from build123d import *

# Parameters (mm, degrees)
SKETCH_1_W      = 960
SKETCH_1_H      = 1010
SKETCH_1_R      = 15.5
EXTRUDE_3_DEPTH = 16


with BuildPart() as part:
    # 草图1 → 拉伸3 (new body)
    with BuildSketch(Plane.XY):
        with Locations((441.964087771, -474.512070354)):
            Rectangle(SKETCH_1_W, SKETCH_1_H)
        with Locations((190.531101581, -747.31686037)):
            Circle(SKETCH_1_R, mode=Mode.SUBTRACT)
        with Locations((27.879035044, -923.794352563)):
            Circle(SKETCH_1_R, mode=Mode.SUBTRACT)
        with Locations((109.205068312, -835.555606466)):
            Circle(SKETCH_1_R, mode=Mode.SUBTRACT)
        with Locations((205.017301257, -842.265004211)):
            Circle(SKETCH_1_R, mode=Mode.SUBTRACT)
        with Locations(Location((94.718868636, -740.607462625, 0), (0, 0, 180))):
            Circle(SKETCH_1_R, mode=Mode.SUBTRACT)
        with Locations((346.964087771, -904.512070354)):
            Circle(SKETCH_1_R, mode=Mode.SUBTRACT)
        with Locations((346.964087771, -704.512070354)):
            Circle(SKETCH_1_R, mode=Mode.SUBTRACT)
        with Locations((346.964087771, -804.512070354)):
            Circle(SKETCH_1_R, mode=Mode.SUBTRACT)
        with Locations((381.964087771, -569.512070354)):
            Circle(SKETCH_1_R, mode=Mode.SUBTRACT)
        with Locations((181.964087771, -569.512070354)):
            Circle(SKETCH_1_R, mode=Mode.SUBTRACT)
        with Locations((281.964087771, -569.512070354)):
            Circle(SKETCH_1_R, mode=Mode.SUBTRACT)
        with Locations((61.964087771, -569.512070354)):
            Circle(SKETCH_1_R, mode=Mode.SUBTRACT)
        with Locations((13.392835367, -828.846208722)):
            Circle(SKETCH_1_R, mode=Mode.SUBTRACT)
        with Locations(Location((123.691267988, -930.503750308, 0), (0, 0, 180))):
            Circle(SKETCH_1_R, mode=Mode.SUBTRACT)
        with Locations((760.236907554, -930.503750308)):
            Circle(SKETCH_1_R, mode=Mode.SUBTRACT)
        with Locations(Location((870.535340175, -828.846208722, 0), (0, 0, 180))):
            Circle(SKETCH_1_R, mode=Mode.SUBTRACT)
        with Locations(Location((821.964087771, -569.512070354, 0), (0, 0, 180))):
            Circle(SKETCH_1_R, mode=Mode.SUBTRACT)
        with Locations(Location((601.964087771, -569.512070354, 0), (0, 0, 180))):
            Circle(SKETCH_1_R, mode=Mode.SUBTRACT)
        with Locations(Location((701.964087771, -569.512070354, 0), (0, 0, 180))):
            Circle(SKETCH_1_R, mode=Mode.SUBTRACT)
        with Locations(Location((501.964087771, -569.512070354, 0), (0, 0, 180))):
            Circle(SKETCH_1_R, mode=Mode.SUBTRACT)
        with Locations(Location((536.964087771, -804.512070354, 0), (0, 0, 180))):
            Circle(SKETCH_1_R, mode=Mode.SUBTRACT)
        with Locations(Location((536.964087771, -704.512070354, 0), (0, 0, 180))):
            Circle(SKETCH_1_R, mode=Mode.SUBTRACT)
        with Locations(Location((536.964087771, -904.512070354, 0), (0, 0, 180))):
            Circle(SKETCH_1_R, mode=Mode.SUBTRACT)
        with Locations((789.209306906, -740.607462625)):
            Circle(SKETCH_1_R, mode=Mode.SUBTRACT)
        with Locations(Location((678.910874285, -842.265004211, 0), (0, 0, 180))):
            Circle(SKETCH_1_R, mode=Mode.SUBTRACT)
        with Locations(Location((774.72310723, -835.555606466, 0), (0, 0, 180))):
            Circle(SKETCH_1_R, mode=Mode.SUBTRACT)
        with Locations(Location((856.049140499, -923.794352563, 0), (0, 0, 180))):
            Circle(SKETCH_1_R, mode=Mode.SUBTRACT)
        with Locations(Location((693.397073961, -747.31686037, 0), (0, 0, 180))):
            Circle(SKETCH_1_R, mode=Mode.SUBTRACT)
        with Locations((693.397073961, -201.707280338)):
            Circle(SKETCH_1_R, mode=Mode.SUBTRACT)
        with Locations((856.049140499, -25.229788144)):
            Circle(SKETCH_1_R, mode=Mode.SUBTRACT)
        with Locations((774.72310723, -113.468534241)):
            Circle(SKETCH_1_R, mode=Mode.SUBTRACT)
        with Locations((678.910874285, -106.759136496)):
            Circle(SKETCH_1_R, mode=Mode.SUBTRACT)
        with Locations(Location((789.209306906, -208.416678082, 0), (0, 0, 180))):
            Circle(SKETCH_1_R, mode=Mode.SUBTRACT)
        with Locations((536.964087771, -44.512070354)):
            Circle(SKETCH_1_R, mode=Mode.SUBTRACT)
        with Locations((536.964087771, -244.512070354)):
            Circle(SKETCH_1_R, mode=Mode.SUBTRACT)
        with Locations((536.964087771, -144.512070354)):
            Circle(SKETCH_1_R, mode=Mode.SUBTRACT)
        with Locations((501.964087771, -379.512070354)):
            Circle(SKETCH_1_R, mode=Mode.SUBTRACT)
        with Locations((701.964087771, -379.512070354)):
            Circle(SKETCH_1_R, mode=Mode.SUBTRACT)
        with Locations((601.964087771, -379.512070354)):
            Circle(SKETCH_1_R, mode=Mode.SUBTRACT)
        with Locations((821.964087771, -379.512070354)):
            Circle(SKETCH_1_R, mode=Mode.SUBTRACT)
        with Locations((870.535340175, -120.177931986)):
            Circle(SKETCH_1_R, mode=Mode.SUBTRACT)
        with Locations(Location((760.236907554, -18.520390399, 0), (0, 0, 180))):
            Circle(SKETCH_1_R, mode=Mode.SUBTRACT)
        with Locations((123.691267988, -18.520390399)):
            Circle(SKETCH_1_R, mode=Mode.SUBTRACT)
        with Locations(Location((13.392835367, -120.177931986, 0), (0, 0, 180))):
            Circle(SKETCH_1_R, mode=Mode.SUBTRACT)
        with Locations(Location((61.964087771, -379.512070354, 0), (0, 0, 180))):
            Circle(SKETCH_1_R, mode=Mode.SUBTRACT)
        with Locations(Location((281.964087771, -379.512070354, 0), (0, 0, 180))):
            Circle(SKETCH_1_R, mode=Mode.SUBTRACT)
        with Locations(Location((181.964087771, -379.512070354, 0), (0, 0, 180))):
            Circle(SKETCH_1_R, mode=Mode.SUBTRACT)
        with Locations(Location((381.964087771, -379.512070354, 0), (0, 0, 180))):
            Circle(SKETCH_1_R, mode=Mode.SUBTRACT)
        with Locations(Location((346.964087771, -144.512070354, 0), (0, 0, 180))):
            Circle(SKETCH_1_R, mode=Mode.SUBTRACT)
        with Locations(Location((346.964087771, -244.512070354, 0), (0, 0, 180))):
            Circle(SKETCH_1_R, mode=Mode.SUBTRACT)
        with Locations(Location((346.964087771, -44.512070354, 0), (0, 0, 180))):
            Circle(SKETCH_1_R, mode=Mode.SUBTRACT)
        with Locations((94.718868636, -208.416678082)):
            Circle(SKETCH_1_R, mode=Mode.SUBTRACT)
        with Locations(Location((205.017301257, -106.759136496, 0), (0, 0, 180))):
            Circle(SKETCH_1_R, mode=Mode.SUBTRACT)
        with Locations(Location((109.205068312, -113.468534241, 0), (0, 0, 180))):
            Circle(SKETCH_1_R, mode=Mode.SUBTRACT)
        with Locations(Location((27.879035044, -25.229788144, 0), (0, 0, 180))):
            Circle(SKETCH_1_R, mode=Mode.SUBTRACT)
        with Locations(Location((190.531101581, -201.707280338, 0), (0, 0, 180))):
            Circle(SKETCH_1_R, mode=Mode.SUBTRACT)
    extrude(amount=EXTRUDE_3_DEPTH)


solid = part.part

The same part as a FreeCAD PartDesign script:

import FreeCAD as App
import Part
import Sketcher
Q = App.Units.Quantity


def add_polygon(sketch, points):
    """Adds a closed chain of lines whose ends are joined by coincident constraints."""
    first, n = sketch.GeometryCount, len(points)
    for a, b in zip(points, points[1:] + points[:1]):
        sketch.addGeometry(Part.LineSegment(App.Vector(*a, 0), App.Vector(*b, 0)), False)
    for i in range(n):
        sketch.addConstraint(Sketcher.Constraint("Coincident", first + i, 2, first + (i + 1) % n, 1))

doc = App.newDocument("Part")
body = doc.addObject("PartDesign::Body", "Body")

sketch1 = doc.addObject("Sketcher::SketchObject", "Sketch")
body.addObject(sketch1)
sketch1.AttachmentSupport = (doc.XY_Plane, [""])
sketch1.MapMode = "FlatFace"
add_polygon(sketch1, [(-38, 30), (-38, -980), (922, -980), (922, 30)])
sketch1.addGeometry(Part.Circle(App.Vector(28, -924, 0), App.Vector(0, 0, 1), 16), False)
sketch1.addGeometry(Part.Circle(App.Vector(13, -829, 0), App.Vector(0, 0, 1), 16), False)
sketch1.addGeometry(Part.Circle(App.Vector(124, -931, 0), App.Vector(0, 0, 1), 16), False)
sketch1.addGeometry(Part.Circle(App.Vector(109, -836, 0), App.Vector(0, 0, 1), 16), False)
sketch1.addGeometry(Part.Circle(App.Vector(205, -842, 0), App.Vector(0, 0, 1), 16), False)
sketch1.addGeometry(Part.Circle(App.Vector(95, -741, 0), App.Vector(0, 0, 1), 16), False)
sketch1.addGeometry(Part.Circle(App.Vector(191, -747, 0), App.Vector(0, 0, 1), 16), False)
sketch1.addGeometry(Part.Circle(App.Vector(347, -905, 0), App.Vector(0, 0, 1), 16), False)
sketch1.addGeometry(Part.Circle(App.Vector(347, -805, 0), App.Vector(0, 0, 1), 16), False)
sketch1.addGeometry(Part.Circle(App.Vector(62, -570, 0), App.Vector(0, 0, 1), 16), False)
sketch1.addGeometry(Part.Circle(App.Vector(182, -570, 0), App.Vector(0, 0, 1), 16), False)
sketch1.addGeometry(Part.Circle(App.Vector(347, -705, 0), App.Vector(0, 0, 1), 16), False)
sketch1.addGeometry(Part.Circle(App.Vector(282, -570, 0), App.Vector(0, 0, 1), 16), False)
sketch1.addGeometry(Part.Circle(App.Vector(382, -570, 0), App.Vector(0, 0, 1), 16), False)
sketch1.addGeometry(Part.Circle(App.Vector(537, -905, 0), App.Vector(0, 0, 1), 16), False)
sketch1.addGeometry(Part.Circle(App.Vector(537, -805, 0), App.Vector(0, 0, 1), 16), False)
sketch1.addGeometry(Part.Circle(App.Vector(760, -931, 0), App.Vector(0, 0, 1), 16), False)
sketch1.addGeometry(Part.Circle(App.Vector(679, -842, 0), App.Vector(0, 0, 1), 16), False)
sketch1.addGeometry(Part.Circle(App.Vector(775, -836, 0), App.Vector(0, 0, 1), 16), False)
sketch1.addGeometry(Part.Circle(App.Vector(856, -924, 0), App.Vector(0, 0, 1), 16), False)
sketch1.addGeometry(Part.Circle(App.Vector(871, -829, 0), App.Vector(0, 0, 1), 16), False)
sketch1.addGeometry(Part.Circle(App.Vector(693, -747, 0), App.Vector(0, 0, 1), 16), False)
sketch1.addGeometry(Part.Circle(App.Vector(789, -741, 0), App.Vector(0, 0, 1), 16), False)
sketch1.addGeometry(Part.Circle(App.Vector(537, -705, 0), App.Vector(0, 0, 1), 16), False)
sketch1.addGeometry(Part.Circle(App.Vector(502, -570, 0), App.Vector(0, 0, 1), 16), False)
sketch1.addGeometry(Part.Circle(App.Vector(602, -570, 0), App.Vector(0, 0, 1), 16), False)
sketch1.addGeometry(Part.Circle(App.Vector(702, -570, 0), App.Vector(0, 0, 1), 16), False)
sketch1.addGeometry(Part.Circle(App.Vector(822, -570, 0), App.Vector(0, 0, 1), 16), False)
sketch1.addGeometry(Part.Circle(App.Vector(62, -380, 0), App.Vector(0, 0, 1), 16), False)
sketch1.addGeometry(Part.Circle(App.Vector(182, -380, 0), App.Vector(0, 0, 1), 16), False)
sketch1.addGeometry(Part.Circle(App.Vector(282, -380, 0), App.Vector(0, 0, 1), 16), False)
sketch1.addGeometry(Part.Circle(App.Vector(382, -380, 0), App.Vector(0, 0, 1), 16), False)
sketch1.addGeometry(Part.Circle(App.Vector(347, -245, 0), App.Vector(0, 0, 1), 16), False)
sketch1.addGeometry(Part.Circle(App.Vector(95, -208, 0), App.Vector(0, 0, 1), 16), False)
sketch1.addGeometry(Part.Circle(App.Vector(191, -202, 0), App.Vector(0, 0, 1), 16), False)
sketch1.addGeometry(Part.Circle(App.Vector(13, -120, 0), App.Vector(0, 0, 1), 16), False)
sketch1.addGeometry(Part.Circle(App.Vector(28, -25, 0), App.Vector(0, 0, 1), 16), False)
sketch1.addGeometry(Part.Circle(App.Vector(109, -113, 0), App.Vector(0, 0, 1), 16), False)
sketch1.addGeometry(Part.Circle(App.Vector(205, -107, 0), App.Vector(0, 0, 1), 16), False)
sketch1.addGeometry(Part.Circle(App.Vector(124, -19, 0), App.Vector(0, 0, 1), 16), False)
sketch1.addGeometry(Part.Circle(App.Vector(347, -145, 0), App.Vector(0, 0, 1), 16), False)
sketch1.addGeometry(Part.Circle(App.Vector(347, -45, 0), App.Vector(0, 0, 1), 16), False)
sketch1.addGeometry(Part.Circle(App.Vector(502, -380, 0), App.Vector(0, 0, 1), 16), False)
sketch1.addGeometry(Part.Circle(App.Vector(602, -380, 0), App.Vector(0, 0, 1), 16), False)
sketch1.addGeometry(Part.Circle(App.Vector(537, -245, 0), App.Vector(0, 0, 1), 16), False)
sketch1.addGeometry(Part.Circle(App.Vector(702, -380, 0), App.Vector(0, 0, 1), 16), False)
sketch1.addGeometry(Part.Circle(App.Vector(822, -380, 0), App.Vector(0, 0, 1), 16), False)
sketch1.addGeometry(Part.Circle(App.Vector(537, -145, 0), App.Vector(0, 0, 1), 16), False)
sketch1.addGeometry(Part.Circle(App.Vector(537, -45, 0), App.Vector(0, 0, 1), 16), False)
sketch1.addGeometry(Part.Circle(App.Vector(693, -202, 0), App.Vector(0, 0, 1), 16), False)
sketch1.addGeometry(Part.Circle(App.Vector(789, -208, 0), App.Vector(0, 0, 1), 16), False)
sketch1.addGeometry(Part.Circle(App.Vector(679, -107, 0), App.Vector(0, 0, 1), 16), False)
sketch1.addGeometry(Part.Circle(App.Vector(775, -113, 0), App.Vector(0, 0, 1), 16), False)
sketch1.addGeometry(Part.Circle(App.Vector(760, -19, 0), App.Vector(0, 0, 1), 16), False)
sketch1.addGeometry(Part.Circle(App.Vector(871, -120, 0), App.Vector(0, 0, 1), 16), False)
sketch1.addGeometry(Part.Circle(App.Vector(856, -25, 0), App.Vector(0, 0, 1), 16), False)
sketch1.addConstraint([
    Sketcher.Constraint("Vertical", 0),
    Sketcher.Constraint("Horizontal", 1),
    Sketcher.Constraint("Vertical", 2),
    Sketcher.Constraint("Horizontal", 3),
    Sketcher.Constraint("Equal", 4, 5),
    Sketcher.Constraint("Equal", 5, 6),
    Sketcher.Constraint("Equal", 6, 7),
    Sketcher.Constraint("Equal", 7, 8),
    Sketcher.Constraint("Equal", 8, 9),
    Sketcher.Constraint("Equal", 9, 10),
    Sketcher.Constraint("Equal", 10, 11),
    Sketcher.Constraint("Equal", 11, 12),
    Sketcher.Constraint("Equal", 12, 13),
    Sketcher.Constraint("Equal", 13, 14),
    Sketcher.Constraint("Equal", 14, 15),
    Sketcher.Constraint("Equal", 15, 16),
    Sketcher.Constraint("Equal", 16, 17),
    Sketcher.Constraint("Equal", 17, 18),
    Sketcher.Constraint("Equal", 18, 19),
    Sketcher.Constraint("Equal", 19, 20),
    Sketcher.Constraint("Equal", 20, 21),
    Sketcher.Constraint("Equal", 21, 22),
    Sketcher.Constraint("Equal", 22, 23),
    Sketcher.Constraint("Equal", 23, 24),
    Sketcher.Constraint("Equal", 24, 25),
    Sketcher.Constraint("Equal", 25, 26),
    Sketcher.Constraint("Equal", 26, 27),
    Sketcher.Constraint("Equal", 27, 28),
    Sketcher.Constraint("Equal", 28, 29),
    Sketcher.Constraint("Equal", 29, 30),
    Sketcher.Constraint("Equal", 30, 31),
    Sketcher.Constraint("Equal", 31, 32),
    Sketcher.Constraint("Equal", 32, 33),
    Sketcher.Constraint("Equal", 33, 34),
    Sketcher.Constraint("Equal", 34, 35),
    Sketcher.Constraint("Equal", 35, 36),
    Sketcher.Constraint("Equal", 36, 37),
    Sketcher.Constraint("Equal", 37, 38),
    Sketcher.Constraint("Equal", 38, 39),
    Sketcher.Constraint("Equal", 39, 40),
    Sketcher.Constraint("Equal", 40, 41),
    Sketcher.Constraint("Equal", 41, 42),
    Sketcher.Constraint("Equal", 42, 43),
    Sketcher.Constraint("Equal", 43, 44),
    Sketcher.Constraint("Equal", 44, 45),
    Sketcher.Constraint("Equal", 45, 46),
    Sketcher.Constraint("Equal", 46, 47),
    Sketcher.Constraint("Equal", 47, 48),
    Sketcher.Constraint("Equal", 48, 49),
    Sketcher.Constraint("Equal", 49, 50),
    Sketcher.Constraint("Equal", 50, 51),
    Sketcher.Constraint("Equal", 51, 52),
    Sketcher.Constraint("Equal", 52, 53),
    Sketcher.Constraint("Equal", 53, 54),
    Sketcher.Constraint("Equal", 54, 55),
    Sketcher.Constraint("Equal", 55, 56),
    Sketcher.Constraint("Equal", 56, 57),
    Sketcher.Constraint("Equal", 57, 58),
    Sketcher.Constraint("Equal", 58, 59),
    Sketcher.Constraint("Horizontal", 13, 3, 14, 3),
    Sketcher.Constraint("Horizontal", 14, 3, 16, 3),
    Sketcher.Constraint("Horizontal", 16, 3, 17, 3),
    Sketcher.Constraint("Horizontal", 11, 3, 18, 3),
    Sketcher.Constraint("Horizontal", 12, 3, 19, 3),
    Sketcher.Constraint("Horizontal", 6, 3, 20, 3),
    Sketcher.Constraint("Horizontal", 8, 3, 21, 3),
    Sketcher.Constraint("Horizontal", 7, 3, 22, 3),
    Sketcher.Constraint("Horizontal", 4, 3, 23, 3),
    Sketcher.Constraint("Horizontal", 5, 3, 24, 3),
    Sketcher.Constraint("Horizontal", 10, 3, 25, 3),
    Sketcher.Constraint("Horizontal", 9, 3, 26, 3),
    Sketcher.Constraint("Horizontal", 15, 3, 27, 3),
    Sketcher.Constraint("Horizontal", 17, 3, 28, 3),
    Sketcher.Constraint("Horizontal", 28, 3, 29, 3),
    Sketcher.Constraint("Horizontal", 29, 3, 30, 3),
    Sketcher.Constraint("Horizontal", 30, 3, 31, 3),
    Sketcher.Constraint("Horizontal", 32, 3, 33, 3),
    Sketcher.Constraint("Horizontal", 33, 3, 34, 3),
    Sketcher.Constraint("Horizontal", 34, 3, 35, 3),
    Sketcher.Constraint("Horizontal", 35, 3, 46, 3),
    Sketcher.Constraint("Horizontal", 46, 3, 47, 3),
    Sketcher.Constraint("Horizontal", 36, 3, 48, 3),
    Sketcher.Constraint("Horizontal", 47, 3, 49, 3),
    Sketcher.Constraint("Horizontal", 49, 3, 50, 3),
    Sketcher.Constraint("Horizontal", 44, 3, 51, 3),
    Sketcher.Constraint("Horizontal", 45, 3, 52, 3),
    Sketcher.Constraint("Horizontal", 38, 3, 53, 3),
    Sketcher.Constraint("Horizontal", 37, 3, 54, 3),
    Sketcher.Constraint("Horizontal", 42, 3, 55, 3),
    Sketcher.Constraint("Horizontal", 41, 3, 56, 3),
    Sketcher.Constraint("Horizontal", 43, 3, 57, 3),
    Sketcher.Constraint("Horizontal", 39, 3, 58, 3),
    Sketcher.Constraint("Horizontal", 40, 3, 59, 3),
    Sketcher.Constraint("Vertical", 11, 3, 12, 3),
    Sketcher.Constraint("Vertical", 12, 3, 15, 3),
    Sketcher.Constraint("Vertical", 18, 3, 19, 3),
    Sketcher.Constraint("Vertical", 19, 3, 27, 3),
    Sketcher.Constraint("Vertical", 13, 3, 32, 3),
    Sketcher.Constraint("Vertical", 14, 3, 33, 3),
    Sketcher.Constraint("Vertical", 16, 3, 34, 3),
    Sketcher.Constraint("Vertical", 17, 3, 35, 3),
    Sketcher.Constraint("Vertical", 15, 3, 36, 3),
    Sketcher.Constraint("Vertical", 9, 3, 37, 3),
    Sketcher.Constraint("Vertical", 10, 3, 38, 3),
    Sketcher.Constraint("Vertical", 5, 3, 39, 3),
    Sketcher.Constraint("Vertical", 4, 3, 40, 3),
    Sketcher.Constraint("Vertical", 7, 3, 41, 3),
    Sketcher.Constraint("Vertical", 8, 3, 42, 3),
    Sketcher.Constraint("Vertical", 6, 3, 43, 3),
    Sketcher.Constraint("Vertical", 36, 3, 44, 3),
    Sketcher.Constraint("Vertical", 44, 3, 45, 3),
    Sketcher.Constraint("Vertical", 28, 3, 46, 3),
    Sketcher.Constraint("Vertical", 29, 3, 47, 3),
    Sketcher.Constraint("Vertical", 27, 3, 48, 3),
    Sketcher.Constraint("Vertical", 30, 3, 49, 3),
    Sketcher.Constraint("Vertical", 31, 3, 50, 3),
    Sketcher.Constraint("Vertical", 48, 3, 51, 3),
    Sketcher.Constraint("Vertical", 51, 3, 52, 3),
    Sketcher.Constraint("Vertical", 25, 3, 53, 3),
    Sketcher.Constraint("Vertical", 26, 3, 54, 3),
    Sketcher.Constraint("Vertical", 21, 3, 55, 3),
    Sketcher.Constraint("Vertical", 22, 3, 56, 3),
    Sketcher.Constraint("Vertical", 20, 3, 57, 3),
    Sketcher.Constraint("Vertical", 24, 3, 58, 3),
    Sketcher.Constraint("Vertical", 23, 3, 59, 3),
    Sketcher.Constraint("Diameter", 4, Q("31 mm")),
    Sketcher.Constraint("DistanceX", 1, 1, 1, 2, Q("960 mm")),
    Sketcher.Constraint("DistanceY", 0, 2, 0, 1, Q("1010 mm")),
    Sketcher.Constraint("DistanceY", 11, 3, 12, 3, Q("100 mm")),
    Sketcher.Constraint("DistanceX", 13, 3, 14, 3, Q("120 mm")),
    Sketcher.Constraint("DistanceY", 12, 3, 15, 3, Q("100 mm")),
    Sketcher.Constraint("DistanceX", 14, 3, 15, 3, Q("165 mm")),
    Sketcher.Constraint("DistanceY", 15, 3, 14, 3, Q("135 mm")),
    Sketcher.Constraint("DistanceX", 14, 3, 16, 3, Q("100 mm")),
    Sketcher.Constraint("DistanceX", 16, 3, 17, 3, Q("100 mm")),
    Sketcher.Constraint("DistanceX", 11, 3, 18, 3, Q("190 mm")),
    Sketcher.Constraint("DistanceX", 17, 3, 28, 3, Q("120 mm")),
    Sketcher.Constraint("DistanceX", 28, 3, 29, 3, Q("100 mm")),
    Sketcher.Constraint("DistanceX", 29, 3, 30, 3, Q("100 mm")),
    Sketcher.Constraint("DistanceX", 30, 3, 31, 3, Q("120 mm")),
    Sketcher.Constraint("DistanceY", 13, 3, 32, 3, Q("190 mm")),
    Sketcher.Constraint("DistanceY", 35, 3, 36, 3, Q("135 mm")),
    Sketcher.Constraint("DistanceY", 36, 3, 44, 3, Q("100 mm")),
    Sketcher.Constraint("DistanceY", 44, 3, 45, 3, Q("100 mm")),
    Sketcher.Constraint("DistanceX", -1, 1, 8, 3, Q("205.017301 mm")),
    Sketcher.Constraint("DistanceX", -1, 1, 10, 3, Q("190.531102 mm")),
    Sketcher.Constraint("DistanceX", 5, 3, 4, 3, Q("14.4862 mm")),
    Sketcher.Constraint("DistanceX", 7, 3, 6, 3, Q("14.4862 mm")),
    Sketcher.Constraint("DistanceX", 9, 3, 7, 3, Q("14.4862 mm")),
    Sketcher.Constraint("DistanceX", 20, 3, 22, 3, Q("14.4862 mm")),
    Sketcher.Constraint("DistanceX", 23, 3, 24, 3, Q("14.4862 mm")),
    Sketcher.Constraint("DistanceX", 21, 3, 25, 3, Q("14.4862 mm")),
    Sketcher.Constraint("DistanceX", 22, 3, 26, 3, Q("14.4862 mm")),
    Sketcher.Constraint("DistanceY", 5, 3, -1, 1, Q("828.846209 mm")),
    Sketcher.Constraint("DistanceY", 6, 3, -1, 1, Q("930.50375 mm")),
    Sketcher.Constraint("DistanceX", -1, 1, 7, 3, Q("109.205068 mm")),
    Sketcher.Constraint("DistanceY", 10, 3, -1, 1, Q("747.31686 mm")),
    Sketcher.Constraint("DistanceY", 11, 3, -1, 1, Q("904.51207 mm")),
    Sketcher.Constraint("DistanceX", -1, 1, 23, 3, Q("856.04914 mm")),
    Sketcher.Constraint("DistanceY", 37, 3, -1, 1, Q("208.416678 mm")),
    Sketcher.Constraint("DistanceY", 38, 3, -1, 1, Q("201.70728 mm")),
    Sketcher.Constraint("DistanceY", 39, 3, -1, 1, Q("120.177932 mm")),
    Sketcher.Constraint("DistanceY", 40, 3, -1, 1, Q("25.229788 mm")),
    Sketcher.Constraint("DistanceY", 43, 3, -1, 1, Q("18.52039 mm")),
    Sketcher.Constraint("DistanceY", 0, 2, -1, 1, Q("979.51207 mm")),
    Sketcher.Constraint("DistanceY", 4, 3, 8, 3, Q("81.529348 mm")),
    Sketcher.Constraint("DistanceY", 8, 3, 9, 3, Q("101.657542 mm")),
    Sketcher.Constraint("DistanceX", 6, 3, 11, 3, Q("223.27282 mm")),
    Sketcher.Constraint("DistanceX", 18, 3, 20, 3, Q("223.27282 mm")),
    Sketcher.Constraint("DistanceY", 37, 3, 42, 3, Q("101.657542 mm")),
    Sketcher.Constraint("DistanceX", 0, 2, 6, 3, Q("161.72718 mm")),
    Sketcher.Constraint("DistanceX", -1, 1, 4, 3, Q("27.879035 mm")),
    Sketcher.Constraint("DistanceY", 4, 3, -1, 1, Q("923.794353 mm")),
    Sketcher.Constraint("DistanceY", 7, 3, -1, 1, Q("835.555606 mm")),
    Sketcher.Constraint("DistanceX", -1, 1, 21, 3, Q("678.910874 mm")),
    Sketcher.Constraint("DistanceY", 41, 3, -1, 1, Q("113.468534 mm")),
])
pad1 = doc.addObject("PartDesign::Pad", "Pad")
body.addObject(pad1)
pad1.Profile = sketch1
pad1.Length = 16

doc.recompute()
